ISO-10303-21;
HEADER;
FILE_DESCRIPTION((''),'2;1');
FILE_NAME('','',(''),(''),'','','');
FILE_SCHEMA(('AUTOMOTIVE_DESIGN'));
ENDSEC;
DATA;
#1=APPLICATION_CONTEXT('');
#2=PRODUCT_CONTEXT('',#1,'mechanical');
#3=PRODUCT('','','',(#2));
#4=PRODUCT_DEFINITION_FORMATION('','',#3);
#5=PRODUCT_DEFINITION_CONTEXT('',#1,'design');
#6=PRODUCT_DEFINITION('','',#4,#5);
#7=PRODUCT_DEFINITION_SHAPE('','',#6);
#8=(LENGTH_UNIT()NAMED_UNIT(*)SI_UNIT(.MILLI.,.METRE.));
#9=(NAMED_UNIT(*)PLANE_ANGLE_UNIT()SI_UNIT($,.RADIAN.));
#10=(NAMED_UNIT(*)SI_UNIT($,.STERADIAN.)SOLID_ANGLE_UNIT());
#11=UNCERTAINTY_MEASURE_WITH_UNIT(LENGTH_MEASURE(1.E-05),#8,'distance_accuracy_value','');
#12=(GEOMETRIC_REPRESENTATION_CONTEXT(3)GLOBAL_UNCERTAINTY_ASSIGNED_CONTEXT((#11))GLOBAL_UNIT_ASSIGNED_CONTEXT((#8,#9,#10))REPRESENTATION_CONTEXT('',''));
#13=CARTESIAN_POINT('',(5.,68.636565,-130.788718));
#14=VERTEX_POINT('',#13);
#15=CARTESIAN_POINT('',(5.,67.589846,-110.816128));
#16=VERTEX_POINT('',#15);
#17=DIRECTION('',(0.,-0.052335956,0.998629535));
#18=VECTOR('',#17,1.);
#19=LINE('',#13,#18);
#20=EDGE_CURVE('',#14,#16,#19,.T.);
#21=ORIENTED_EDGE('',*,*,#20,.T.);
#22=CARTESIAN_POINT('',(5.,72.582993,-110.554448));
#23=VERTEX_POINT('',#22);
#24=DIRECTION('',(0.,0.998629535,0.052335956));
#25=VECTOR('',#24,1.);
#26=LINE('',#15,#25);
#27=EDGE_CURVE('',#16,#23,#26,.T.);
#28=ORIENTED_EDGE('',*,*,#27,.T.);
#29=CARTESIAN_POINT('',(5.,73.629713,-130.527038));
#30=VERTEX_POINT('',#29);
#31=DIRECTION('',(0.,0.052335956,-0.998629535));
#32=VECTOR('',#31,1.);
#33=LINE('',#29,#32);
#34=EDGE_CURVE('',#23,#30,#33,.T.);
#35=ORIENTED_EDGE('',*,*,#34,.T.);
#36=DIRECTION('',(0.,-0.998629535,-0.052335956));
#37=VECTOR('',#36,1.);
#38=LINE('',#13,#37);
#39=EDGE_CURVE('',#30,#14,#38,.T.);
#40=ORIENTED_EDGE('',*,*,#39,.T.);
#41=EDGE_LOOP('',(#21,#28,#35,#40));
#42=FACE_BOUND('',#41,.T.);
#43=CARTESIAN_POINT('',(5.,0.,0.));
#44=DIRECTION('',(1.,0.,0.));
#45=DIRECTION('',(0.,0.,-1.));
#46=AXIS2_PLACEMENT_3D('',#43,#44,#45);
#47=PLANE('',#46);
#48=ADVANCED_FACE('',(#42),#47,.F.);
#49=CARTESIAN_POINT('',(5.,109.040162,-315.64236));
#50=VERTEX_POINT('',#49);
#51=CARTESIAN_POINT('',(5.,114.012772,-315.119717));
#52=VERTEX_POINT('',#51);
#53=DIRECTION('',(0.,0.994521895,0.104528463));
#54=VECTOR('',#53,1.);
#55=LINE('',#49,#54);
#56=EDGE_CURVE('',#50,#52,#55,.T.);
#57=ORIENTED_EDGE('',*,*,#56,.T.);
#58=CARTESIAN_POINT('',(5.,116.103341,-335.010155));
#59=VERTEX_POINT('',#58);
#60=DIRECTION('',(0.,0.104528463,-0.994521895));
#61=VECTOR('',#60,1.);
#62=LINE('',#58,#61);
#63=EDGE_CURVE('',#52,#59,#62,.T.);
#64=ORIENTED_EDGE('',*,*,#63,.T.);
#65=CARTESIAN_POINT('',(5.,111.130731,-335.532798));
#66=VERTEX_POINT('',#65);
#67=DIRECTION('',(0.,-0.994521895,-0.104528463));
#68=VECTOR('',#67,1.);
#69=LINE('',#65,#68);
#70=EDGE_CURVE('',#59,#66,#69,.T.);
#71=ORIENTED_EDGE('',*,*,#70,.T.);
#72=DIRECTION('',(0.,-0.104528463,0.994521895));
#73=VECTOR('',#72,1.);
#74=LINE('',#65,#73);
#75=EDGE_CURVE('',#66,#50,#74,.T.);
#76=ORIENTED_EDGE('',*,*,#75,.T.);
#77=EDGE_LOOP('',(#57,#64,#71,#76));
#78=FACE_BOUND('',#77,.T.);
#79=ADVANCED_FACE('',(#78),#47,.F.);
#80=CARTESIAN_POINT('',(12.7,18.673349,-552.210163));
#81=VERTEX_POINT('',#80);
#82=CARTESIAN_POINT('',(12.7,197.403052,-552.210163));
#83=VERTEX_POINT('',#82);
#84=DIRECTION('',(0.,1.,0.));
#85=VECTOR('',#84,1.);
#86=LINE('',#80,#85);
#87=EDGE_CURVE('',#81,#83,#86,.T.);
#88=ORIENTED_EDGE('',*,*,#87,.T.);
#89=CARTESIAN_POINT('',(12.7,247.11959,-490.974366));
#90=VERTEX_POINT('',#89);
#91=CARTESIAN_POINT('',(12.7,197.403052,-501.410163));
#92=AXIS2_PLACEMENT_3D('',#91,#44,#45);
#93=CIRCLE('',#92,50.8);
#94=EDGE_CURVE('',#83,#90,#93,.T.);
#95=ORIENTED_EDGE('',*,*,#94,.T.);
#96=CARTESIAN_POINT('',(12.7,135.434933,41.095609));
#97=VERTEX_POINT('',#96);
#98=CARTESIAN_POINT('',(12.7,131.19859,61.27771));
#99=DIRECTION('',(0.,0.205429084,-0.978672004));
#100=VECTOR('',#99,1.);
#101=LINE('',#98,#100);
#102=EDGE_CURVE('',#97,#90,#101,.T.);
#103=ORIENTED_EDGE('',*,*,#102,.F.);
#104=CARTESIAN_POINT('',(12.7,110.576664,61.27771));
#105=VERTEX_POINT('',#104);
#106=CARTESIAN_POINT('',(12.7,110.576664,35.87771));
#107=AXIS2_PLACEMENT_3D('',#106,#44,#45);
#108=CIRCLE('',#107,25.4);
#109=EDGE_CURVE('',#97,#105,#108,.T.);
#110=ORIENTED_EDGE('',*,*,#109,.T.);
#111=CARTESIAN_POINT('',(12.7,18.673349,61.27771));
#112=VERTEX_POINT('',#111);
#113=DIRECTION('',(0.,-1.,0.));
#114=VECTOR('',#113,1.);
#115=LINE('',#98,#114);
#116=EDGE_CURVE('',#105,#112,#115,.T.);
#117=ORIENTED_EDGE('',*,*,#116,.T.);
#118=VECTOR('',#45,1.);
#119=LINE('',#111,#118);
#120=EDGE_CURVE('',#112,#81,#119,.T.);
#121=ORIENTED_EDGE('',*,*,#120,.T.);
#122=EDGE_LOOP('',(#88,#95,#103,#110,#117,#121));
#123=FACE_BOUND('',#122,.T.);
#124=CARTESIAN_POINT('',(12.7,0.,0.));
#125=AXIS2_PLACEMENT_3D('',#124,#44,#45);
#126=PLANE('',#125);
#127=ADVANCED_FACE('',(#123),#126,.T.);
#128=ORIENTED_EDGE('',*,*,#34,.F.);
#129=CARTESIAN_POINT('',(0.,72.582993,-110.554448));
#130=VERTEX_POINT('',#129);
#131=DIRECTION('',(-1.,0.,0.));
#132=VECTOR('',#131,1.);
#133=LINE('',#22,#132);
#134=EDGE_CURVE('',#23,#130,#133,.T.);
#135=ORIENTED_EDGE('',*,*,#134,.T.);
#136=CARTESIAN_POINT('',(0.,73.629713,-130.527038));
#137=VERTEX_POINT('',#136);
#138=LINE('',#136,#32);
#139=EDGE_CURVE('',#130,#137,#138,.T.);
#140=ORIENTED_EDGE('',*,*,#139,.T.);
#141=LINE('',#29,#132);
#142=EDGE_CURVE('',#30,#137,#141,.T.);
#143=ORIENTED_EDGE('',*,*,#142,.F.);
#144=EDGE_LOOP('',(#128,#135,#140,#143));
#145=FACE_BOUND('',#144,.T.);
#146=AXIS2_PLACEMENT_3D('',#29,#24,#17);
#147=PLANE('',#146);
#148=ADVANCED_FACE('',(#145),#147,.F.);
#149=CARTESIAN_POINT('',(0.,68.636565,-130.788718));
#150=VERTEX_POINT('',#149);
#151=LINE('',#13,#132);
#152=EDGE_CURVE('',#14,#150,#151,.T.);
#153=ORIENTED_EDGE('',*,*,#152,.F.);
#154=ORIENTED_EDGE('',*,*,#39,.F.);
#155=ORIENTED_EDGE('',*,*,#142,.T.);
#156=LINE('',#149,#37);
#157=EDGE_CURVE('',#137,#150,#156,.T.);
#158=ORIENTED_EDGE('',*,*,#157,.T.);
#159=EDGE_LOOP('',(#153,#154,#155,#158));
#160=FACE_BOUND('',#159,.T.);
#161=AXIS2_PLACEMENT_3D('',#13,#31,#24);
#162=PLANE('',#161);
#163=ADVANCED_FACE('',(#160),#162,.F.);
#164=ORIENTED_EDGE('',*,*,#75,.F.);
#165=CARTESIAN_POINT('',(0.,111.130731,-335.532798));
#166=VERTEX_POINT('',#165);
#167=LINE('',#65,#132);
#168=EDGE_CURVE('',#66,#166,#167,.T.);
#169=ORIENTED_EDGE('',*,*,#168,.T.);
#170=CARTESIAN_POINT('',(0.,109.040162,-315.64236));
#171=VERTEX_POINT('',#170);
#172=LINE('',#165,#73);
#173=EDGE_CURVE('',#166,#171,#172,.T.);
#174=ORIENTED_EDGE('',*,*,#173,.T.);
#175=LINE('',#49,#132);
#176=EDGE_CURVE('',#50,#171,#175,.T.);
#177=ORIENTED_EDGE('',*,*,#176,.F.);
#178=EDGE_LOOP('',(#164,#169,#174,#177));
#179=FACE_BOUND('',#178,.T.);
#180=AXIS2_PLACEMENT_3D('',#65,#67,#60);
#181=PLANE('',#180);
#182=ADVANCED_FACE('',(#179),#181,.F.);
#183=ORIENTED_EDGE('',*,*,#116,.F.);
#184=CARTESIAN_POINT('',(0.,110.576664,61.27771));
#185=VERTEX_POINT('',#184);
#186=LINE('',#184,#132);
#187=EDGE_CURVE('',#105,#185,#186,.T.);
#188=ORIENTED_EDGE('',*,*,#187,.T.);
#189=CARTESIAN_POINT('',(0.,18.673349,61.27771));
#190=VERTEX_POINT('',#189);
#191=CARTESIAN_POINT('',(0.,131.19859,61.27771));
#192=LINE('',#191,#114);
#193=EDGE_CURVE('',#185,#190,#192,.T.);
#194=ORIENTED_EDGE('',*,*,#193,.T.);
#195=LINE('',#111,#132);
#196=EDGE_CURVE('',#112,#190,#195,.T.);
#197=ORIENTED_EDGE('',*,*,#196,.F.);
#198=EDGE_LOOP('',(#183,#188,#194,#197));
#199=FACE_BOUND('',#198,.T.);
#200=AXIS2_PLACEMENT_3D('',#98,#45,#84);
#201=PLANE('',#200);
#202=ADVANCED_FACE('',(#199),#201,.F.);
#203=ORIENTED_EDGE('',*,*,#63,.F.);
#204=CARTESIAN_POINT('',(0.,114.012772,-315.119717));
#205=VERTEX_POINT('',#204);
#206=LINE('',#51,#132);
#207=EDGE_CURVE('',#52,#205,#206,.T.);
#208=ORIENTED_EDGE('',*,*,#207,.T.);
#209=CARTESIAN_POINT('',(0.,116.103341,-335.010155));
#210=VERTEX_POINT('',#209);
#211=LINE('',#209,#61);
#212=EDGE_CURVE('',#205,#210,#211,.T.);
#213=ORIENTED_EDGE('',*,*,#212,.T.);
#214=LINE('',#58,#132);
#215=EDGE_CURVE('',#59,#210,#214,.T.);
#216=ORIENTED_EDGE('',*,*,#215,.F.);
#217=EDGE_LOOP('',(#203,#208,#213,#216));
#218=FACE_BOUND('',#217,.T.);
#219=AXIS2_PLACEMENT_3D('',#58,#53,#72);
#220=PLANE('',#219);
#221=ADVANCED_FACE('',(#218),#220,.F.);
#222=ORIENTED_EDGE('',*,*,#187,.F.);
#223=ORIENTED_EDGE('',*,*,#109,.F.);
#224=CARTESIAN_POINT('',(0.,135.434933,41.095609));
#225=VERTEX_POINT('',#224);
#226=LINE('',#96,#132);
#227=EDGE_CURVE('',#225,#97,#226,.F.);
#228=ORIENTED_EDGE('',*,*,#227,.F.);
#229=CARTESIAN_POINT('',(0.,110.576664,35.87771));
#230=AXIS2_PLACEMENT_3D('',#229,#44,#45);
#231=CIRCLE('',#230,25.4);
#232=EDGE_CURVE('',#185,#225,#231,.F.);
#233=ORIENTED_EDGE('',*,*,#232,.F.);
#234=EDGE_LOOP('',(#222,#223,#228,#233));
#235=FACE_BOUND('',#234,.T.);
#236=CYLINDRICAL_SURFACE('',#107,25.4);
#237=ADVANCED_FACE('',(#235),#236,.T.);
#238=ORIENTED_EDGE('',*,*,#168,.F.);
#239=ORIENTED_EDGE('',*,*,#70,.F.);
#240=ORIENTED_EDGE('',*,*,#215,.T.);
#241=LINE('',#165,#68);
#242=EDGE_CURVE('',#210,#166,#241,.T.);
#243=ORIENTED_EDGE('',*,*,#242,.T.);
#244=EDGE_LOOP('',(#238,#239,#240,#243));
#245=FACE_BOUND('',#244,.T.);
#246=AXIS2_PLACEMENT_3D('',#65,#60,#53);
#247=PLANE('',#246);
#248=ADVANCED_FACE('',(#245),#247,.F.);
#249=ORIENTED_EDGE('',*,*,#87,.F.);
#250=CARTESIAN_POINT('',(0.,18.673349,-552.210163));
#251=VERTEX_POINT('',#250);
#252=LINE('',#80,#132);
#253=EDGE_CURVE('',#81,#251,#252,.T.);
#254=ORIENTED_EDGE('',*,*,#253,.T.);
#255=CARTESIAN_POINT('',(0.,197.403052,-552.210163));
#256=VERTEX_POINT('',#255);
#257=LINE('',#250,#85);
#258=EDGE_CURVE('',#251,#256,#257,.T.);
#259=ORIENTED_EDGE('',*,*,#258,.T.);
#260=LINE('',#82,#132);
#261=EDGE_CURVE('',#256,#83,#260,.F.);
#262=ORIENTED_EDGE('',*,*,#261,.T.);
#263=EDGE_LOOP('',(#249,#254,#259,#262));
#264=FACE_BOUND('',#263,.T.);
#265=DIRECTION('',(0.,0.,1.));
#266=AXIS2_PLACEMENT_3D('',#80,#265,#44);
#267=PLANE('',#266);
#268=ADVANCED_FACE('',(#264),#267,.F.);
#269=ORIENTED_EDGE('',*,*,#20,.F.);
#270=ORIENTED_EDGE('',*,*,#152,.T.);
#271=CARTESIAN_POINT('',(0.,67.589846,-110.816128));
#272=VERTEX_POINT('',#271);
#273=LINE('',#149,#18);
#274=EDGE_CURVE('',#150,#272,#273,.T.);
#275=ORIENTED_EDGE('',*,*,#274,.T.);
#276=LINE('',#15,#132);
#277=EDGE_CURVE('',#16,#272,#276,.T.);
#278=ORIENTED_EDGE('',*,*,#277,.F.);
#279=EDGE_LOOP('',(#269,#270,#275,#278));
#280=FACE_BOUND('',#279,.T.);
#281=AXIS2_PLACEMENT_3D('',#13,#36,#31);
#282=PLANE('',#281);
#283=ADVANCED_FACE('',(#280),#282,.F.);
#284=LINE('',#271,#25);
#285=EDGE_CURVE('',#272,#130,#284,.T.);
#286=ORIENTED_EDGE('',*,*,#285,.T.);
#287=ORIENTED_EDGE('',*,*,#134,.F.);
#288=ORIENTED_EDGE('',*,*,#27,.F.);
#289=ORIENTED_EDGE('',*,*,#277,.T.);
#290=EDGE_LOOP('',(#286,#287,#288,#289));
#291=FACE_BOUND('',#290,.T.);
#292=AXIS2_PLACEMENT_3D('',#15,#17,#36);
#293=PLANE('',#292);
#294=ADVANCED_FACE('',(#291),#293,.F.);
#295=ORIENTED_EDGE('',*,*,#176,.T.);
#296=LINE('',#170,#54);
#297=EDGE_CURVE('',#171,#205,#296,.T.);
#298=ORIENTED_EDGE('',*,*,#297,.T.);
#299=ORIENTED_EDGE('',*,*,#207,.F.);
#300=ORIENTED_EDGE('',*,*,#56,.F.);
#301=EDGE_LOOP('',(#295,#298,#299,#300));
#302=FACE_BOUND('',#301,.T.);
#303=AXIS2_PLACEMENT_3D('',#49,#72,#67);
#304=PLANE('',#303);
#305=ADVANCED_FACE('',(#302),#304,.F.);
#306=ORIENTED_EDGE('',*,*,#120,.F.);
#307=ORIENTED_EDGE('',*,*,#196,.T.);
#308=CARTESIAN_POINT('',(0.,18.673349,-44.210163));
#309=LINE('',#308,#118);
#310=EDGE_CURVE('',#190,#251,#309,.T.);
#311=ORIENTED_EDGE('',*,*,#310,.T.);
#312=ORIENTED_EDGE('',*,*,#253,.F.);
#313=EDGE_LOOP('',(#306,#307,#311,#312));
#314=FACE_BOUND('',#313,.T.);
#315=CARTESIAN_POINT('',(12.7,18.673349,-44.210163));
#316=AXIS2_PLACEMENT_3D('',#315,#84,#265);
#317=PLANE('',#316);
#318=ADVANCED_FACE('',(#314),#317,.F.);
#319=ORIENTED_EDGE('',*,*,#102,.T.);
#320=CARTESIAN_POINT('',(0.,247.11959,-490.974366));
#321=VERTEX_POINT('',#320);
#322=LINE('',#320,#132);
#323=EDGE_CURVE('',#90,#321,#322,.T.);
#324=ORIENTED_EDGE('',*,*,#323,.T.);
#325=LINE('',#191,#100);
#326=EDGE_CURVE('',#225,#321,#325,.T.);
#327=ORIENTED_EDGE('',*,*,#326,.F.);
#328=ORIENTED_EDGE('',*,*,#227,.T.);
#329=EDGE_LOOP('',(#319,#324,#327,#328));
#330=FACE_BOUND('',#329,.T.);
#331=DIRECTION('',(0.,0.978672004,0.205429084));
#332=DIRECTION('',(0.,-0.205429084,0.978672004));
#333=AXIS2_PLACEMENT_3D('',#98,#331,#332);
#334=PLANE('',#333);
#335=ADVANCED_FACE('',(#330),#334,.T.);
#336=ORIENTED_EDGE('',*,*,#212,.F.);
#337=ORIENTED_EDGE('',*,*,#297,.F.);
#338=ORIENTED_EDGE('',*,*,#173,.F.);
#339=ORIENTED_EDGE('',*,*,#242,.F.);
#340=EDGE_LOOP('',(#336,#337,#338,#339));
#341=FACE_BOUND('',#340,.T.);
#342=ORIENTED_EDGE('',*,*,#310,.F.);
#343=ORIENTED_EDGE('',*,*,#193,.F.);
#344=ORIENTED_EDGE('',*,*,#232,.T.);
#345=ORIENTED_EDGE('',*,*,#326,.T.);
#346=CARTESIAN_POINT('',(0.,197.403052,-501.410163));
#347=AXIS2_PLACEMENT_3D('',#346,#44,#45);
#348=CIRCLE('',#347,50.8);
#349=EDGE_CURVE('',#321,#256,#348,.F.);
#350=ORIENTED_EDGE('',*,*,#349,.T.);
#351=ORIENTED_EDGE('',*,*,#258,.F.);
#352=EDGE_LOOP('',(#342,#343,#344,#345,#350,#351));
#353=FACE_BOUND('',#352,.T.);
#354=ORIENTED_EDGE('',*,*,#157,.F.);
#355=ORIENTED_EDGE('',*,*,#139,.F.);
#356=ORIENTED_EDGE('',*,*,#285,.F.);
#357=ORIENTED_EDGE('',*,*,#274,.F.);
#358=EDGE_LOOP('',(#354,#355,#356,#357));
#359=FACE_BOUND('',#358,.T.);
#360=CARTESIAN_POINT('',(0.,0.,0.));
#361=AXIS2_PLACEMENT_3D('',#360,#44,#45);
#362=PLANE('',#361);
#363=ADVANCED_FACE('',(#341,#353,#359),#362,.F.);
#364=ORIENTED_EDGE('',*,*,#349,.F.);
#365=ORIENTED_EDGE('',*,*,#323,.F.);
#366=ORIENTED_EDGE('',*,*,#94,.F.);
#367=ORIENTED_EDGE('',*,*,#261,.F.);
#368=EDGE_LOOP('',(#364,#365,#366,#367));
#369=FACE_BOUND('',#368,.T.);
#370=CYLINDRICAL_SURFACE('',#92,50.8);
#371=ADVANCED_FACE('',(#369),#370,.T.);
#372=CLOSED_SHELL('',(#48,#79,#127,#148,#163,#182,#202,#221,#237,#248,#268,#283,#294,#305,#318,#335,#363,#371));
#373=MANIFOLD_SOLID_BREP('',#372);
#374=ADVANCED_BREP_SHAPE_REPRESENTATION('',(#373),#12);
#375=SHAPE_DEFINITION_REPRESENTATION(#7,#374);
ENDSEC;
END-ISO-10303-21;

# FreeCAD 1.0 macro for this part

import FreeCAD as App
import Part
import Sketcher

V = App.Vector
Q = App.Units.Quantity


def edges_at(feature, points):
    """Names of the edges that pass closest to the given points."""
    edges = feature.Shape.Edges
    near = lambda p: min(range(len(edges)), key=lambda i: edges[i].distToShape(Part.Vertex(*p))[0])
    return sorted({f"Edge{near(p) + 1}" for p in points})

doc = App.newDocument("Part")
body = doc.addObject("PartDesign::Body", "Body")

sketch1 = doc.addObject("Sketcher::SketchObject", "Sketch")
body.addObject(sketch1)
sketch1.AttachmentSupport = (doc.YZ_Plane, [""])
sketch1.MapMode = "FlatFace"
sketch1.addGeometry(Part.LineSegment(V(19, -552, 0), V(260, -552, 0)), False)
sketch1.addGeometry(Part.LineSegment(V(260, -552, 0), V(131, 61, 0)), False)
sketch1.addGeometry(Part.LineSegment(V(131, 61, 0), V(19, 61, 0)), False)
sketch1.addGeometry(Part.LineSegment(V(19, 61, 0), V(19, -552, 0)), False)
sketch1.addConstraint(Sketcher.Constraint("Coincident", 0, 2, 1, 1))
sketch1.addConstraint(Sketcher.Constraint("Coincident", 1, 2, 2, 1))
sketch1.addConstraint(Sketcher.Constraint("Coincident", 2, 2, 3, 1))
sketch1.addConstraint(Sketcher.Constraint("Coincident", 3, 2, 0, 1))
sketch1.addConstraint(Sketcher.Constraint("Horizontal", 0))
sketch1.addConstraint(Sketcher.Constraint("Horizontal", 2))
sketch1.addConstraint(Sketcher.Constraint("Vertical", 3))
sketch1.addConstraint(Sketcher.Constraint("DistanceX", 0, 1, 0, 2, Q("9.5 in")))
sketch1.addConstraint(Sketcher.Constraint("DistanceX", 2, 2, 2, 1, Q("112.525241 mm")))
sketch1.addConstraint(Sketcher.Constraint("DistanceY", 3, 2, 3, 1, Q("613.487873 mm")))
sketch1.addConstraint(Sketcher.Constraint("DistanceX", -1, 1, 0, 2, Q("259.973349 mm")))
sketch1.addConstraint(Sketcher.Constraint("DistanceY", -1, 1, 1, 2, Q("61.27771 mm")))
pad1 = doc.addObject("PartDesign::Pad", "Pad")
body.addObject(pad1)
pad1.Profile = sketch1
pad1.Length = Q("0.5 in")
doc.recompute()

fillet = doc.addObject("PartDesign::Fillet", "Fillet")
body.addObject(fillet)
fillet.Base = (pad1, edges_at(pad1, [(6.35, 259.973, -552.21)]))
fillet.Radius = Q("2 in")
doc.recompute()

fillet2 = doc.addObject("PartDesign::Fillet", "Fillet001")
body.addObject(fillet2)
fillet2.Base = (fillet, edges_at(fillet, [(6.35, 131.199, 61.278)]))
fillet2.Radius = Q("1 in")

sketch2 = doc.addObject("Sketcher::SketchObject", "Sketch001")
body.addObject(sketch2)
sketch2.AttachmentSupport = (doc.YZ_Plane, [""])
sketch2.MapMode = "FlatFace"
sketch2.addGeometry(Part.LineSegment(V(74, -131, 0), V(69, -131, 0)), False)
sketch2.addGeometry(Part.LineSegment(V(69, -131, 0), V(68, -111, 0)), False)
sketch2.addGeometry(Part.LineSegment(V(68, -111, 0), V(73, -111, 0)), False)
sketch2.addGeometry(Part.LineSegment(V(73, -111, 0), V(74, -131, 0)), False)
sketch2.addConstraint(Sketcher.Constraint("Coincident", 0, 2, 1, 1))
sketch2.addConstraint(Sketcher.Constraint("Coincident", 1, 2, 2, 1))
sketch2.addConstraint(Sketcher.Constraint("Coincident", 2, 2, 3, 1))
sketch2.addConstraint(Sketcher.Constraint("Coincident", 3, 2, 0, 1))
sketch2.addConstraint(Sketcher.Constraint("Perpendicular", 0, 1))
sketch2.addConstraint(Sketcher.Constraint("Perpendicular", 1, 2))
sketch2.addConstraint(Sketcher.Constraint("Perpendicular", 2, 3))
sketch2.addConstraint(Sketcher.Constraint("Angle", 0, Q("-177 deg")))
sketch2.addConstraint(Sketcher.Constraint("Distance", 0, Q("5 mm")))
sketch2.addConstraint(Sketcher.Constraint("Distance", 1, Q("20 mm")))
sketch2.addConstraint(Sketcher.Constraint("DistanceY", 0, 2, -1, 1, Q("130.788718 mm")))
sketch2.addConstraint(Sketcher.Constraint("DistanceX", -1, 1, 0, 2, Q("68.636565 mm")))
pocket1 = doc.addObject("PartDesign::Pocket", "Pocket")
body.addObject(pocket1)
pocket1.Profile = sketch2
pocket1.Length = 5
pocket1.Reversed = True

sketch3 = doc.addObject("Sketcher::SketchObject", "Sketch002")
body.addObject(sketch3)
sketch3.AttachmentSupport = (doc.YZ_Plane, [""])
sketch3.MapMode = "FlatFace"
sketch3.addGeometry(Part.LineSegment(V(116.1, -335, 0), V(111.1, -335.5, 0)), False)
sketch3.addGeometry(Part.LineSegment(V(111.1, -335.5, 0), V(109, -315.6, 0)), False)
sketch3.addGeometry(Part.LineSegment(V(109, -315.6, 0), V(114, -315.1, 0)), False)
sketch3.addGeometry(Part.LineSegment(V(114, -315.1, 0), V(116.1, -335, 0)), False)
sketch3.addConstraint(Sketcher.Constraint("Coincident", 0, 2, 1, 1))
sketch3.addConstraint(Sketcher.Constraint("Coincident", 1, 2, 2, 1))
sketch3.addConstraint(Sketcher.Constraint("Coincident", 2, 2, 3, 1))
sketch3.addConstraint(Sketcher.Constraint("Coincident", 3, 2, 0, 1))
sketch3.addConstraint(Sketcher.Constraint("Perpendicular", 0, 1))
sketch3.addConstraint(Sketcher.Constraint("Perpendicular", 1, 2))
sketch3.addConstraint(Sketcher.Constraint("Perpendicular", 2, 3))
sketch3.addConstraint(Sketcher.Constraint("Angle", 0, Q("-174 deg")))
sketch3.addConstraint(Sketcher.Constraint("Distance", 0, Q("5 mm")))
sketch3.addConstraint(Sketcher.Constraint("Distance", 1, Q("20 mm")))
sketch3.addConstraint(Sketcher.Constraint("DistanceX", -1, 1, 0, 2, Q("111.130731 mm")))
sketch3.addConstraint(Sketcher.Constraint("DistanceY", 1, 2, -1, 1, Q("315.64236 mm")))
pocket2 = doc.addObject("PartDesign::Pocket", "Pocket001")
body.addObject(pocket2)
pocket2.Profile = sketch3
pocket2.Length = 5
pocket2.Reversed = True

doc.recompute()
